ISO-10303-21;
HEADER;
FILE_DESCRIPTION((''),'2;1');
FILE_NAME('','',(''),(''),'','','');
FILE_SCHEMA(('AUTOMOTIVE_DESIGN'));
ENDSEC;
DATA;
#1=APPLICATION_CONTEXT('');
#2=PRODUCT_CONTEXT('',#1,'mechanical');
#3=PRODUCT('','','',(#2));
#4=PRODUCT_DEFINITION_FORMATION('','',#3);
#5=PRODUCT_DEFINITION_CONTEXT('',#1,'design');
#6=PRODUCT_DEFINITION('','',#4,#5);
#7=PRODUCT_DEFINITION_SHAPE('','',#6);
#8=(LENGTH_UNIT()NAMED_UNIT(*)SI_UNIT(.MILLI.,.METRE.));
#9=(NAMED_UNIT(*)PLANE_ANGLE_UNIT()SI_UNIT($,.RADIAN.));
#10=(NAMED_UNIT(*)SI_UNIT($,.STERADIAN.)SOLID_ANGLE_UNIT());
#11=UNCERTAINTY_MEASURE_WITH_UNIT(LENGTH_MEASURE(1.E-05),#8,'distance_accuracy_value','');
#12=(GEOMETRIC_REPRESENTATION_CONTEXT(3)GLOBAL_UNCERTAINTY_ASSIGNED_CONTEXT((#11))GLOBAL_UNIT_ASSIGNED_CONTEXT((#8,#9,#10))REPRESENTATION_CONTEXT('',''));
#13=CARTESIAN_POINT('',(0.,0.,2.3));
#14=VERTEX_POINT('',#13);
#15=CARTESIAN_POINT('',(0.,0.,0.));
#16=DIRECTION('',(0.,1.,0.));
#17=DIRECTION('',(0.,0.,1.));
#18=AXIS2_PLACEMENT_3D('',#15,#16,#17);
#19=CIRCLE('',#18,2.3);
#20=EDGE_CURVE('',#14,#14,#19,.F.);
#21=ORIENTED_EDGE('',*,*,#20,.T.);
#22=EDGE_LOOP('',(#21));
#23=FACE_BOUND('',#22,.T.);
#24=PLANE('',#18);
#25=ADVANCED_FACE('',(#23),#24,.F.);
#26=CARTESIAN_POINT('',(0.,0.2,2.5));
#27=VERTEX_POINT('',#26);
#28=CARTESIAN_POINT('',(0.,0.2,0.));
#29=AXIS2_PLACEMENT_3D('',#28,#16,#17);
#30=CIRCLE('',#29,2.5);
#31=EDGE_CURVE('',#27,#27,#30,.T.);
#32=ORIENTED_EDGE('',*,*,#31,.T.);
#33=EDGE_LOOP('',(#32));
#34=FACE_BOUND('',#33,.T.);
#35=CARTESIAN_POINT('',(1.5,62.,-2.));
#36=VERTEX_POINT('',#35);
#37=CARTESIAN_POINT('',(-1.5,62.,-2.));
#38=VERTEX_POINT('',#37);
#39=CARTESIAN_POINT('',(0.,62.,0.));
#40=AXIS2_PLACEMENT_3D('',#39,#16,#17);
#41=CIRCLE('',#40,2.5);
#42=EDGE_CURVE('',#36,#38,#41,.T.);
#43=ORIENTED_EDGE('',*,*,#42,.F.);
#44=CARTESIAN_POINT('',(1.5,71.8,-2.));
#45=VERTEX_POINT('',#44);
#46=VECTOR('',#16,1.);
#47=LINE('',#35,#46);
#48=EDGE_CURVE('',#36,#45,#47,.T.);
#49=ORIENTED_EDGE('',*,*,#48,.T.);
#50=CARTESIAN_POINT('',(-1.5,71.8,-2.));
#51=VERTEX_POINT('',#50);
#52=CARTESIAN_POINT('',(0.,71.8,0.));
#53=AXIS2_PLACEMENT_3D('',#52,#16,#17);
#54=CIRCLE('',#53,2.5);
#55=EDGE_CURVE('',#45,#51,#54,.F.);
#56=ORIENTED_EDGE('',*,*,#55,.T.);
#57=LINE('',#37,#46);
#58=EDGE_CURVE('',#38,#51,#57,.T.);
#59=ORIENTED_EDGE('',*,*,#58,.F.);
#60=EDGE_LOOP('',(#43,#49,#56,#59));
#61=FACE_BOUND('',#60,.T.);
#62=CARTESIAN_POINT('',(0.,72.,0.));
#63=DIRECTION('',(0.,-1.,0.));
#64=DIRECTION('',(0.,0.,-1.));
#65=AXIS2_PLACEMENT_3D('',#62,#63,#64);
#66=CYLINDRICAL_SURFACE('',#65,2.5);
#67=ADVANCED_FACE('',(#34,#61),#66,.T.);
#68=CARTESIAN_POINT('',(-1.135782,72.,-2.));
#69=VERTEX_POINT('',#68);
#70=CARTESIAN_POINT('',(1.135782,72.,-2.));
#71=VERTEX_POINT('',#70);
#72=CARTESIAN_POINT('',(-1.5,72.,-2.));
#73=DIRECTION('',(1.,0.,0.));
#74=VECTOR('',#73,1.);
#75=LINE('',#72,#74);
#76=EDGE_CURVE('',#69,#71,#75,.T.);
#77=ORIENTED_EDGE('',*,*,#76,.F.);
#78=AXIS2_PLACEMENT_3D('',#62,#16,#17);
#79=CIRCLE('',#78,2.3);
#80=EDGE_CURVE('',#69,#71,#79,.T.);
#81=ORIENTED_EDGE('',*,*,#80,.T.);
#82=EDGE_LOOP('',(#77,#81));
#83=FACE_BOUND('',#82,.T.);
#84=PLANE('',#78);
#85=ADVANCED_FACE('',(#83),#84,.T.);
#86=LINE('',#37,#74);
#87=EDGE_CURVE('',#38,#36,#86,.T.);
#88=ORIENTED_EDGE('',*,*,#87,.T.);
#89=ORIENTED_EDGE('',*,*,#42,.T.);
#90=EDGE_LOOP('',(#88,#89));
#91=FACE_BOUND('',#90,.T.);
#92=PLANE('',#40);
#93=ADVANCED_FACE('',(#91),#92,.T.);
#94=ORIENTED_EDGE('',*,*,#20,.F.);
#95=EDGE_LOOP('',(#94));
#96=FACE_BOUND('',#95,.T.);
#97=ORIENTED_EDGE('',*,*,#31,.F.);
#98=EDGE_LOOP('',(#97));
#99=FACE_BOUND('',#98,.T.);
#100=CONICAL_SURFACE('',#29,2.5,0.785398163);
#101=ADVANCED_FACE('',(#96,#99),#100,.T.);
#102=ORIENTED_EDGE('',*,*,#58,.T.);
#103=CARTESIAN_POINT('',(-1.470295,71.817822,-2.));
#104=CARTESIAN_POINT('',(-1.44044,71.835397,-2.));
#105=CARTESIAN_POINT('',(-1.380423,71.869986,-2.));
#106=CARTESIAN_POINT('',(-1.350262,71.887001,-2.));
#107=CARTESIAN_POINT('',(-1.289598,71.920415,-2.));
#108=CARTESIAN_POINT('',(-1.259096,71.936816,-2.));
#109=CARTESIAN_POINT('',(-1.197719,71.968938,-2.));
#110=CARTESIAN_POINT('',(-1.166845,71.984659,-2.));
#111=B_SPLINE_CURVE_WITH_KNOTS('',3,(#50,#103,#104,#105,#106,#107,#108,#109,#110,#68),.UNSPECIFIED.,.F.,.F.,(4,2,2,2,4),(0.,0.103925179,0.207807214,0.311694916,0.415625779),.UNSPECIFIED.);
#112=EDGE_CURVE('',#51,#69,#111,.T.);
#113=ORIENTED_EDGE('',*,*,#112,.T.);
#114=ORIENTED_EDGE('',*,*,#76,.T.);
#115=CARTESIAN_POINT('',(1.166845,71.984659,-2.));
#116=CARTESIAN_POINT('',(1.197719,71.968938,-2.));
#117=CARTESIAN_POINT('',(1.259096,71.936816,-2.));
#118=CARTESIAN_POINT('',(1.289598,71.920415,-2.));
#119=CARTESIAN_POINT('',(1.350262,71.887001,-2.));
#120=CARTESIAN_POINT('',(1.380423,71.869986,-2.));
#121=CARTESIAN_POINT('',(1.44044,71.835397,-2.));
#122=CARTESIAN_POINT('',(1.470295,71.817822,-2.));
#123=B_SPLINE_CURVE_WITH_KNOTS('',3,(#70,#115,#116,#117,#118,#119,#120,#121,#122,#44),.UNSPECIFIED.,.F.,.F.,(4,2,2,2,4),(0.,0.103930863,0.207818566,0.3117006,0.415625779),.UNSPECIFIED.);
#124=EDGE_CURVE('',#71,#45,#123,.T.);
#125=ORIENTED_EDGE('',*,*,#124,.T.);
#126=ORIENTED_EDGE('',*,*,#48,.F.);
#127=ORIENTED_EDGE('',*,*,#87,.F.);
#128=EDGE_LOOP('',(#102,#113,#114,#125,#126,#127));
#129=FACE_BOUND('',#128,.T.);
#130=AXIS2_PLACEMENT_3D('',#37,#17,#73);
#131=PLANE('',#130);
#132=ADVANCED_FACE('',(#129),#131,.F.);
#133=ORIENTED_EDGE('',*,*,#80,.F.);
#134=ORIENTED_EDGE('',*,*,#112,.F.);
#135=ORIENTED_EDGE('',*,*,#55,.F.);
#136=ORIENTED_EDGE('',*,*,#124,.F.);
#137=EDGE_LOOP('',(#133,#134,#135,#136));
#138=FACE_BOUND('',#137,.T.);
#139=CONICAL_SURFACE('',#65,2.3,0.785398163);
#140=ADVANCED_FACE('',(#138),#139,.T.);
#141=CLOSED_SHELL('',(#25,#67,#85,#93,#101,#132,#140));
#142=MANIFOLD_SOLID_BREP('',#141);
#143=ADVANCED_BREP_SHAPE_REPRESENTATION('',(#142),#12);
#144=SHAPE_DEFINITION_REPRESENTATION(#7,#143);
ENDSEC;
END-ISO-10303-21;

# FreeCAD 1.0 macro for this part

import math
import FreeCAD as App
import Part
import Sketcher


def edges_at(feature, points):
    """Names of the edges that pass closest to the given points."""
    edges = feature.Shape.Edges
    near = lambda p: min(range(len(edges)), key=lambda i: edges[i].distToShape(Part.Vertex(*p))[0])
    return sorted({f"Edge{near(p) + 1}" for p in points})

doc = App.newDocument("Part")
body = doc.addObject("PartDesign::Body", "Body")

# Sketch on XZ plane
sketch1 = body.newObject("Sketcher::SketchObject", "Sketch")
sketch1.AttachmentSupport = (doc.getObject("XZ_Plane"), [""])
sketch1.MapMode = "FlatFace"
sketch1.addGeometry(Part.Circle(App.Vector(0, 0, 0), App.Vector(0, 0, 1), 2.5), False)
sketch1.addConstraint([
    Sketcher.Constraint("Coincident", 0, 3, -1, 1),
    Sketcher.Constraint("Diameter", 0, 5.0),
])
pad1 = body.newObject("PartDesign::Pad", "Pad")
pad1.Profile = sketch1
pad1.Length = 72
pad1.Reversed = True

# Sketch on XZ plane
sketch2 = body.newObject("Sketcher::SketchObject", "Sketch001")
sketch2.AttachmentSupport = (doc.getObject("XZ_Plane"), [""])
sketch2.MapMode = "FlatFace"
sketch2.AttachmentOffset = App.Placement(App.Vector(0, 0, -62), App.Rotation())
sketch2.addGeometry([
    Part.LineSegment(App.Vector(-1.5, -2, 0), App.Vector(1.5, -2, 0)),
    Part.ArcOfCircle(Part.Circle(App.Vector(0, 0, 0), App.Vector(0, 0, 1), 2.5), math.radians(-127), math.radians(-53)),
], False)
sketch2.addConstraint([
    Sketcher.Constraint("Coincident", 0, 1, 1, 1),
    Sketcher.Constraint("Coincident", 1, 2, 0, 2),
    Sketcher.Constraint("Horizontal", 0),
    Sketcher.Constraint("Coincident", 1, 3, -1, 1),
    Sketcher.Constraint("Radius", 1, 2.5),
    Sketcher.Constraint("DistanceX", 0, 1, 0, 2, 3.0),
])
pocket1 = body.newObject("PartDesign::Pocket", "Pocket")
pocket1.Profile = sketch2
pocket1.Length = 10
doc.recompute()

chamfer = body.newObject("PartDesign::Chamfer", "Chamfer")
chamfer.Base = (pocket1, edges_at(pocket1, [(0, 0, -2.5), (-2.372, 72, 0.791)]))
chamfer.Size = 0.2

doc.recompute()
